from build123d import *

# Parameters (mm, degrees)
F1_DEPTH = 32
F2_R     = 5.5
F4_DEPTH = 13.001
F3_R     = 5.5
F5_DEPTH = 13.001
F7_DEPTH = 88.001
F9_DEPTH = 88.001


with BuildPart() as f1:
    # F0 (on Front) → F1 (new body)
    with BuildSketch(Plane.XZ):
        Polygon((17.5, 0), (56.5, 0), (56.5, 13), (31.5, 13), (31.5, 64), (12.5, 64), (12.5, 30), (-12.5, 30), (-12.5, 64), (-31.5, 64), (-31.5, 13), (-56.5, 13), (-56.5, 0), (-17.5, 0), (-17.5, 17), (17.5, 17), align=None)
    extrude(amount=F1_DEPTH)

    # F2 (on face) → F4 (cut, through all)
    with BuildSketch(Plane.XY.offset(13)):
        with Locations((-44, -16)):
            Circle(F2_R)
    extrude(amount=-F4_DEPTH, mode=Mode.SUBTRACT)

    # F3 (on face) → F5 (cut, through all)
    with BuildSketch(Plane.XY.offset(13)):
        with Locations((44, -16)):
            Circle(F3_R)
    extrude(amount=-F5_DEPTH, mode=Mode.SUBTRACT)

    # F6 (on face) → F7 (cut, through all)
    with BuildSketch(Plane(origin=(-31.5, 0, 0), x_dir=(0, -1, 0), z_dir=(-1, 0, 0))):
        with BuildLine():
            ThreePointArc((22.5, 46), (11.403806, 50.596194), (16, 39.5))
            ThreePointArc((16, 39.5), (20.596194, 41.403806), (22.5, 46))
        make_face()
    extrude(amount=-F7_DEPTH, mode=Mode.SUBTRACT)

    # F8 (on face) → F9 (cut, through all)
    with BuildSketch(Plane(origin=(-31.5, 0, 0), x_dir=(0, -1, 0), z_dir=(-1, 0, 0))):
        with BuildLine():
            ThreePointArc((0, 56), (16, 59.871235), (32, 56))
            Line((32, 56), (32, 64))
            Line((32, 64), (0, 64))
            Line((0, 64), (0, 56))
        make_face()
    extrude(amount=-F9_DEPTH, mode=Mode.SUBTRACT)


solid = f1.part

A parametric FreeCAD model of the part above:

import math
import FreeCAD as App
import Part
import Sketcher

V = App.Vector
Q = App.Units.Quantity


def add_polygon(sketch, points):
    """Adds a closed chain of lines whose ends are joined by coincident constraints."""
    first, n = sketch.GeometryCount, len(points)
    for a, b in zip(points, points[1:] + points[:1]):
        sketch.addGeometry(Part.LineSegment(App.Vector(*a, 0), App.Vector(*b, 0)), False)
    for i in range(n):
        sketch.addConstraint(Sketcher.Constraint("Coincident", first + i, 2, first + (i + 1) % n, 1))

doc = App.newDocument("Part")
params = doc.addObject("Spreadsheet::Sheet", "Params")
for row, (alias, value) in enumerate([
    ("sketch1_width", "39 mm"),
    ("sketch1_width2", "25 mm"),
    ("sketch1_width3", "19 mm"),
    ("sketch1_height", "13 mm"),
    ("sketch1_height2", "51 mm"),
    ("pad1_length", "32 mm"),
    ("sketch2_diameter", "11 mm"),
    ("sketch3_diameter", "11 mm"),
    ("sketch4_radius", "6.5 mm"),
    ("sketch5_radius", "35.000001 mm"),
    ("sketch5_width", "32 mm"),
    ("sketch5_height", "8 mm"),
], start=1):
    params.set(f"A{row}", alias)
    params.set(f"B{row}", "=" + value)
    params.setAlias(f"B{row}", alias)

body = doc.addObject("PartDesign::Body", "Body")

# Sketch on XZ plane
sketch1 = body.newObject("Sketcher::SketchObject", "Sketch")
sketch1.AttachmentSupport = (doc.getObject("XZ_Plane"), [""])
sketch1.MapMode = "FlatFace"
add_polygon(sketch1, [(18, 0), (56, 0), (56, 13), (32, 13), (32, 64), (12, 64), (12, 30), (-12, 30), (-12, 64), (-32, 64), (-32, 13), (-56, 13), (-56, 0), (-18, 0), (-18, 17), (18, 17)])  # lines 0-15
sketch1.addConstraint([
    Sketcher.Constraint("Horizontal", 0),
    Sketcher.Constraint("Vertical", 1),
    Sketcher.Constraint("Horizontal", 2),
    Sketcher.Constraint("Vertical", 3),
    Sketcher.Constraint("Horizontal", 4),
    Sketcher.Constraint("Vertical", 5),
    Sketcher.Constraint("Horizontal", 6),
    Sketcher.Constraint("Vertical", 7),
    Sketcher.Constraint("Horizontal", 8),
    Sketcher.Constraint("Vertical", 9),
    Sketcher.Constraint("Horizontal", 10),
    Sketcher.Constraint("Vertical", 11),
    Sketcher.Constraint("Horizontal", 12),
    Sketcher.Constraint("Vertical", 13),
    Sketcher.Constraint("Horizontal", 14),
    Sketcher.Constraint("Vertical", 15),
    Sketcher.Constraint("Symmetric", 0, 2, 11, 2, -1, 1),
    Sketcher.Constraint("Symmetric", 4, 2, 7, 2, -2),
    Sketcher.Constraint("Symmetric", 2, 2, 9, 2, -2),
    Sketcher.Constraint("Symmetric", 12, 2, 15, 2, -2),
    Sketcher.Constraint("Equal", 2, 6),
    Sketcher.Constraint("DistanceX", 0, 1, 0, 2, Q("39 mm")),
    Sketcher.Constraint("DistanceX", 2, 2, 2, 1, Q("25 mm")),
    Sketcher.Constraint("DistanceX", 4, 2, 4, 1, Q("19 mm")),
    Sketcher.Constraint("DistanceY", 1, 1, 1, 2, Q("13 mm")),
    Sketcher.Constraint("DistanceY", 3, 1, 3, 2, Q("51 mm")),
    Sketcher.Constraint("DistanceY", 5, 2, 5, 1, Q("34 mm")),
    Sketcher.Constraint("DistanceY", 13, 1, 13, 2, Q("17 mm")),
])
sketch1.setExpression("Constraints[37]", "Params.sketch1_width")
sketch1.setExpression("Constraints[38]", "Params.sketch1_width2")
sketch1.setExpression("Constraints[39]", "Params.sketch1_width3")
sketch1.setExpression("Constraints[40]", "Params.sketch1_height")
sketch1.setExpression("Constraints[41]", "Params.sketch1_height2")
pad1 = body.newObject("PartDesign::Pad", "Pad")
pad1.Profile = sketch1
pad1.setExpression("Length", "Params.pad1_length")

# Sketch on XY plane
sketch2 = body.newObject("Sketcher::SketchObject", "Sketch001")
sketch2.AttachmentSupport = (doc.getObject("XY_Plane"), [""])
sketch2.MapMode = "FlatFace"
sketch2.AttachmentOffset = App.Placement(V(0, 0, 13), App.Rotation())
sketch2.addGeometry(Part.Circle(V(-44, -16, 0), V(0, 0, 1), 6), False)
sketch2.addConstraint([
    Sketcher.Constraint("Diameter", 0, Q("11 mm")),
    Sketcher.Constraint("DistanceX", 0, 3, -1, 1, Q("44 mm")),
    Sketcher.Constraint("DistanceY", 0, 3, -1, 1, Q("16 mm")),
])
sketch2.setExpression("Constraints[0]", "Params.sketch2_diameter")
pocket1 = body.newObject("PartDesign::Pocket", "Pocket")
pocket1.Profile = sketch2
pocket1.Type = "ThroughAll"

# Sketch on XY plane
sketch3 = body.newObject("Sketcher::SketchObject", "Sketch002")
sketch3.AttachmentSupport = (doc.getObject("XY_Plane"), [""])
sketch3.MapMode = "FlatFace"
sketch3.AttachmentOffset = App.Placement(V(0, 0, 13), App.Rotation())
sketch3.addGeometry(Part.Circle(V(44, -16, 0), V(0, 0, 1), 6), False)
sketch3.addConstraint([
    Sketcher.Constraint("Diameter", 0, Q("11 mm")),
    Sketcher.Constraint("DistanceX", -1, 1, 0, 3, Q("44 mm")),
    Sketcher.Constraint("DistanceY", 0, 3, -1, 1, Q("16 mm")),
])
sketch3.setExpression("Constraints[0]", "Params.sketch3_diameter")
pocket2 = body.newObject("PartDesign::Pocket", "Pocket001")
pocket2.Profile = sketch3
pocket2.Type = "ThroughAll"

# Sketch on YZ plane
sketch4 = body.newObject("Sketcher::SketchObject", "Sketch003")
sketch4.AttachmentSupport = (doc.getObject("YZ_Plane"), [""])
sketch4.MapMode = "FlatFace"
sketch4.AttachmentOffset = App.Placement(V(0, 0, -31.5), App.Rotation())
sketch4.addGeometry([
    Part.ArcOfCircle(Part.Circle(V(-16, 46, 0), V(0, 0, 1), 6), math.radians(-90), math.radians(180)),
    Part.ArcOfCircle(Part.Circle(V(-16, 46, 0), V(0, 0, 1), 7), math.radians(-180), math.radians(-90)),
], False)
sketch4.addConstraint([
    Sketcher.Constraint("Tangent", 0, 1, 1, 2),
    Sketcher.Constraint("Coincident", 1, 1, 0, 2),
    Sketcher.Constraint("Horizontal", 0, 3, 1, 1),
    Sketcher.Constraint("Vertical", 1, 3, 0, 1),
    Sketcher.Constraint("Radius", 0, Q("6.5 mm")),
    Sketcher.Constraint("DistanceX", 0, 3, -1, 1, Q("16 mm")),
    Sketcher.Constraint("DistanceY", -1, 1, 0, 3, Q("46 mm")),
])
sketch4.setExpression("Constraints[4]", "Params.sketch4_radius")
pocket3 = body.newObject("PartDesign::Pocket", "Pocket002")
pocket3.Profile = sketch4
pocket3.Type = "ThroughAll"
pocket3.Reversed = True

# Sketch on YZ plane
sketch5 = body.newObject("Sketcher::SketchObject", "Sketch004")
sketch5.AttachmentSupport = (doc.getObject("YZ_Plane"), [""])
sketch5.MapMode = "FlatFace"
sketch5.AttachmentOffset = App.Placement(V(0, 0, -31.5), App.Rotation())
sketch5.addGeometry([
    Part.ArcOfCircle(Part.Circle(V(-16, 25, 0), V(0, 0, 1), 35), math.radians(63), math.radians(117)),
    Part.LineSegment(V(-32, 56, 0), V(-32, 64, 0)),
    Part.LineSegment(V(-32, 64, 0), V(0, 64, 0)),
    Part.LineSegment(V(0, 64, 0), V(0, 56, 0)),
], False)
sketch5.addConstraint([
    Sketcher.Constraint("Coincident", 0, 2, 1, 1),
    Sketcher.Constraint("Coincident", 1, 2, 2, 1),
    Sketcher.Constraint("Coincident", 2, 2, 3, 1),
    Sketcher.Constraint("Coincident", 3, 2, 0, 1),
    Sketcher.Constraint("Vertical", 1),
    Sketcher.Constraint("Horizontal", 2),
    Sketcher.Constraint("Vertical", 3),
    Sketcher.Constraint("PointOnObject", 2, 2, -2),
    Sketcher.Constraint("Horizontal", 0, 2, 3, 2),
    Sketcher.Constraint("Radius", 0, Q("35.000001 mm")),
    Sketcher.Constraint("DistanceX", 2, 1, 2, 2, Q("32 mm")),
    Sketcher.Constraint("DistanceY", 1, 1, 1, 2, Q("8 mm")),
    Sketcher.Constraint("DistanceY", -1, 1, 0, 2, Q("56 mm")),
])
sketch5.setExpression("Constraints[9]", "Params.sketch5_radius")
sketch5.setExpression("Constraints[10]", "Params.sketch5_width")
sketch5.setExpression("Constraints[11]", "Params.sketch5_height")
pocket4 = body.newObject("PartDesign::Pocket", "Pocket003")
pocket4.Profile = sketch5
pocket4.Type = "ThroughAll"
pocket4.Reversed = True

doc.recompute()
